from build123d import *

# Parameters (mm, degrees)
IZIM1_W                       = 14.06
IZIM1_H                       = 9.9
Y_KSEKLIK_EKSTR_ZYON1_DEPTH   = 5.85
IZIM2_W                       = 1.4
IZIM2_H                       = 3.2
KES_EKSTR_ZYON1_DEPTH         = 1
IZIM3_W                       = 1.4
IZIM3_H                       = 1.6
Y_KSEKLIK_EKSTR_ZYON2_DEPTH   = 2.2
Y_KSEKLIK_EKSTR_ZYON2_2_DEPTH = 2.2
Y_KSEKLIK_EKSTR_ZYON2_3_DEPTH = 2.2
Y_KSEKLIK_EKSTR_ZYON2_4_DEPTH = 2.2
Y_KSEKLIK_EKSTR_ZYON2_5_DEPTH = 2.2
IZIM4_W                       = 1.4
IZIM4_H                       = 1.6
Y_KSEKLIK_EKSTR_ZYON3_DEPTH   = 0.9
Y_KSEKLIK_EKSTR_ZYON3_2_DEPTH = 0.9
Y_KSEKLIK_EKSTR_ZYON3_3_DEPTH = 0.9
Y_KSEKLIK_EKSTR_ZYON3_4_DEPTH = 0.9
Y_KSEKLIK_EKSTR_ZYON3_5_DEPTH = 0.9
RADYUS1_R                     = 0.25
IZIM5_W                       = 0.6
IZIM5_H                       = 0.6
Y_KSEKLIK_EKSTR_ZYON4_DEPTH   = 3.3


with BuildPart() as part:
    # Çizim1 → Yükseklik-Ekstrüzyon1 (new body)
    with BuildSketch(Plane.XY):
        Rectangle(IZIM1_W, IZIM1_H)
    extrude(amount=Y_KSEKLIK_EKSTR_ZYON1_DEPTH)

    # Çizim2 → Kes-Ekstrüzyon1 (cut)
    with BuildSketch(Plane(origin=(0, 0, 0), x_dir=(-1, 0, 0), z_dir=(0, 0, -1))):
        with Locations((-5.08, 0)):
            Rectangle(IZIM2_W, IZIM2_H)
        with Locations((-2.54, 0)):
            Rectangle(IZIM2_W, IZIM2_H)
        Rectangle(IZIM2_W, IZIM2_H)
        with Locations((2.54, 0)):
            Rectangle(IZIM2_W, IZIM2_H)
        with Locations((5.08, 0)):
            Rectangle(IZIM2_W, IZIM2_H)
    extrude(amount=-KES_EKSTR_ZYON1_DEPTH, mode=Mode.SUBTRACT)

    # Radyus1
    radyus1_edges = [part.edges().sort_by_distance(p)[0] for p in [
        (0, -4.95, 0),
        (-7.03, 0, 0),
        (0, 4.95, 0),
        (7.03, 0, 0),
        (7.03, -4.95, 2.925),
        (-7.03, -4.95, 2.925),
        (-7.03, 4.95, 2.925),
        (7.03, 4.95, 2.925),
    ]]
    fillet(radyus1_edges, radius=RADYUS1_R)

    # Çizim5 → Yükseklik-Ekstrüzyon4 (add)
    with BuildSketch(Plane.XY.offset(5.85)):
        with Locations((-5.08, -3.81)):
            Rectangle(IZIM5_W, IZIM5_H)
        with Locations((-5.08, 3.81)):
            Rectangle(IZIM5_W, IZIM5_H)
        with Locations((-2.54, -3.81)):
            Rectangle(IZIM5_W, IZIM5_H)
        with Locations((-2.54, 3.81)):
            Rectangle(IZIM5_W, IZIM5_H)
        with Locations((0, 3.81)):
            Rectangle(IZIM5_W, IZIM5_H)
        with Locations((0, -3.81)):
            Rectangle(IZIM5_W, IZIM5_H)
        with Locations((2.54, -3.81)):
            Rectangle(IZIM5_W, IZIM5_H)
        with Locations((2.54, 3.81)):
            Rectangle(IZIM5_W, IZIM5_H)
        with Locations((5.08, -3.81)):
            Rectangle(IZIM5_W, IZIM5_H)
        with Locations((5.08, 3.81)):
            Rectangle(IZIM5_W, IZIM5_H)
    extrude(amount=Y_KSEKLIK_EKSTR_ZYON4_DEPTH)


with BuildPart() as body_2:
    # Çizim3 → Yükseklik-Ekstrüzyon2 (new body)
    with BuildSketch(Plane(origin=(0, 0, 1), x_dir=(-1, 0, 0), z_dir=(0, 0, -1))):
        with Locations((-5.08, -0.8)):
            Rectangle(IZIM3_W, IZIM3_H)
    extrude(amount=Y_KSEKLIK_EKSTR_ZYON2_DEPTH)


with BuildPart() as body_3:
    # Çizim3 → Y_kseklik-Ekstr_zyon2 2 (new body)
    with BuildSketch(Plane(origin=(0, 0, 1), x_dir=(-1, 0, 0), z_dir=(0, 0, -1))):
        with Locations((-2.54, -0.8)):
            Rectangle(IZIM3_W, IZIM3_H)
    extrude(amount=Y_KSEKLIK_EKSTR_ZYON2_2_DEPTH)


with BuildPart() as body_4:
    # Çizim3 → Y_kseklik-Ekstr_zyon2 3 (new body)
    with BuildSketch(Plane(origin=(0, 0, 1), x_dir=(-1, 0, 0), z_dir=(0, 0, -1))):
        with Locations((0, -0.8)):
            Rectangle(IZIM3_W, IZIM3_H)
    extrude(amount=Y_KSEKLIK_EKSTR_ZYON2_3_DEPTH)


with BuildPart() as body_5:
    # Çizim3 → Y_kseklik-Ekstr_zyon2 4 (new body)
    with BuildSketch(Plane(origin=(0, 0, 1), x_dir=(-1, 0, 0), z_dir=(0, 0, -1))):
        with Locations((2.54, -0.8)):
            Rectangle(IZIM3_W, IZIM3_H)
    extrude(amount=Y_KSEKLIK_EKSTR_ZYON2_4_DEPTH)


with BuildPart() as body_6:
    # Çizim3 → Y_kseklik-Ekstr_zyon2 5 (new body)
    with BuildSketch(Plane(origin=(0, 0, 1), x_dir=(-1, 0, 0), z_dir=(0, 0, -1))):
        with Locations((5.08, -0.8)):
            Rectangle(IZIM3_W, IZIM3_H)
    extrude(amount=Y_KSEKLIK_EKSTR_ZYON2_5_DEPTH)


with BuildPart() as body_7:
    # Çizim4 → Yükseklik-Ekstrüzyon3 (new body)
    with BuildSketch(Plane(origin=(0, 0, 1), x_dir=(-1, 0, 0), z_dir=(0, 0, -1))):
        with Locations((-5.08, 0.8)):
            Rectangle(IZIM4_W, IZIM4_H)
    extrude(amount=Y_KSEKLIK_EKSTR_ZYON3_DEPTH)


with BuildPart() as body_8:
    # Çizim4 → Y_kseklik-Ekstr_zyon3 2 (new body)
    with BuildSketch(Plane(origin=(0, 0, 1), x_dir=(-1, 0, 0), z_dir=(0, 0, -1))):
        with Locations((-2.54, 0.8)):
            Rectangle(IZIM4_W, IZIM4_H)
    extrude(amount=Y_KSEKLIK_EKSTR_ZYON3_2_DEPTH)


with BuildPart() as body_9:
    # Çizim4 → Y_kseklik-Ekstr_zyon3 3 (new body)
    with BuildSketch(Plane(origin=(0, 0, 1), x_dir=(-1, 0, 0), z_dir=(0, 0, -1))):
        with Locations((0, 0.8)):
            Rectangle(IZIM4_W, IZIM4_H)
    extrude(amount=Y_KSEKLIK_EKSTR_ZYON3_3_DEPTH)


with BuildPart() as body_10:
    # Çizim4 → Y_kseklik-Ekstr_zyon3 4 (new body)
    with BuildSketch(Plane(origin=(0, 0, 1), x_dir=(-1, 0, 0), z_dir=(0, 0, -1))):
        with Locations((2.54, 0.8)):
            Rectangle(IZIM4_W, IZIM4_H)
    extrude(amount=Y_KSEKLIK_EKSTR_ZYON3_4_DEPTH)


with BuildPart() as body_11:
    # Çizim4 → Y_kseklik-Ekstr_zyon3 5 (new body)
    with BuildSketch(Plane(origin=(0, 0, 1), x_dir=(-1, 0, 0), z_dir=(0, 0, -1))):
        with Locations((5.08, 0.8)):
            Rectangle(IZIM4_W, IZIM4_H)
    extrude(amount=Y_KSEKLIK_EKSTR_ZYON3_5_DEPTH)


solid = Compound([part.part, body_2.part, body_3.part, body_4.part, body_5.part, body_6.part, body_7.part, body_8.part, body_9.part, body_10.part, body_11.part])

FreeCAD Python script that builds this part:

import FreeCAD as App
import Part
import Sketcher
from FreeCAD import Vector


def edges_at(feature, points):
    """Names of the edges that pass closest to the given points."""
    edges = feature.Shape.Edges
    near = lambda p: min(range(len(edges)), key=lambda i: edges[i].distToShape(Part.Vertex(*p))[0])
    return sorted({f"Edge{near(p) + 1}" for p in points})


def add_polygon(sketch, points):
    """Adds a closed chain of lines whose ends are joined by coincident constraints."""
    first, n = sketch.GeometryCount, len(points)
    for a, b in zip(points, points[1:] + points[:1]):
        sketch.addGeometry(Part.LineSegment(App.Vector(*a, 0), App.Vector(*b, 0)), False)
    for i in range(n):
        sketch.addConstraint(Sketcher.Constraint("Coincident", first + i, 2, first + (i + 1) % n, 1))

doc = App.newDocument("Part")
body = doc.addObject("PartDesign::Body", "Body")

# Sketch on XY plane
sketch1 = body.newObject("Sketcher::SketchObject", "Sketch")
sketch1.AttachmentSupport = (doc.getObject("XY_Plane"), [""])
sketch1.MapMode = "FlatFace"
add_polygon(sketch1, [(-7, 5), (-7, -5), (7, -5), (7, 5)])  # lines 0-3
sketch1.addConstraint(Sketcher.Constraint("Vertical", 0))
sketch1.addConstraint(Sketcher.Constraint("Horizontal", 1))
sketch1.addConstraint(Sketcher.Constraint("Vertical", 2))
sketch1.addConstraint(Sketcher.Constraint("Horizontal", 3))
sketch1.addConstraint(Sketcher.Constraint("Symmetric", 0, 2, 2, 2, -1, 1))
sketch1.addConstraint(Sketcher.Constraint("DistanceY", 0, 2, 0, 1, 9.9))
sketch1.addConstraint(Sketcher.Constraint("DistanceX", 1, 1, 1, 2, 14.06))
pad1 = body.newObject("PartDesign::Pad", "Pad")
pad1.Profile = sketch1
pad1.Length = 5.85

# Sketch on XY plane
sketch2 = body.newObject("Sketcher::SketchObject", "Sketch001")
sketch2.AttachmentSupport = (doc.getObject("XY_Plane"), [""])
sketch2.MapMode = "FlatFace"
add_polygon(sketch2, [(5.8, 1.6), (5.8, -1.6), (4.4, -1.6), (4.4, 1.6)])  # lines 0-3
add_polygon(sketch2, [(3.2, 1.6), (3.2, -1.6), (1.8, -1.6), (1.8, 1.6)])  # lines 4-7
add_polygon(sketch2, [(0.7, 1.6), (0.7, -1.6), (-0.7, -1.6), (-0.7, 1.6)])  # lines 8-11
add_polygon(sketch2, [(-1.8, 1.6), (-1.8, -1.6), (-3.2, -1.6), (-3.2, 1.6)])  # lines 12-15
add_polygon(sketch2, [(-4.4, 1.6), (-4.4, -1.6), (-5.8, -1.6), (-5.8, 1.6)])  # lines 16-19
sketch2.addConstraint(Sketcher.Constraint("Vertical", 0))
sketch2.addConstraint(Sketcher.Constraint("Horizontal", 1))
sketch2.addConstraint(Sketcher.Constraint("Vertical", 2))
sketch2.addConstraint(Sketcher.Constraint("Horizontal", 3))
sketch2.addConstraint(Sketcher.Constraint("Vertical", 4))
sketch2.addConstraint(Sketcher.Constraint("Horizontal", 5))
sketch2.addConstraint(Sketcher.Constraint("Vertical", 6))
sketch2.addConstraint(Sketcher.Constraint("Horizontal", 7))
sketch2.addConstraint(Sketcher.Constraint("Vertical", 8))
sketch2.addConstraint(Sketcher.Constraint("Horizontal", 9))
sketch2.addConstraint(Sketcher.Constraint("Vertical", 10))
sketch2.addConstraint(Sketcher.Constraint("Horizontal", 11))
sketch2.addConstraint(Sketcher.Constraint("Vertical", 12))
sketch2.addConstraint(Sketcher.Constraint("Horizontal", 13))
sketch2.addConstraint(Sketcher.Constraint("Vertical", 14))
sketch2.addConstraint(Sketcher.Constraint("Horizontal", 15))
sketch2.addConstraint(Sketcher.Constraint("Vertical", 16))
sketch2.addConstraint(Sketcher.Constraint("Horizontal", 17))
sketch2.addConstraint(Sketcher.Constraint("Vertical", 18))
sketch2.addConstraint(Sketcher.Constraint("Horizontal", 19))
sketch2.addConstraint(Sketcher.Constraint("Symmetric", 8, 2, 10, 2, -1, 1))
sketch2.addConstraint(Sketcher.Constraint("Symmetric", 6, 2, 12, 2, -1, 1))
sketch2.addConstraint(Sketcher.Constraint("Symmetric", 4, 2, 14, 2, -1, 1))
sketch2.addConstraint(Sketcher.Constraint("Symmetric", 2, 2, 16, 2, -1, 1))
sketch2.addConstraint(Sketcher.Constraint("Symmetric", 0, 2, 18, 2, -1, 1))
sketch2.addConstraint(Sketcher.Constraint("Horizontal", 1, 2, 4, 2))
sketch2.addConstraint(Sketcher.Constraint("Horizontal", 3, 2, 6, 2))
sketch2.addConstraint(Sketcher.Constraint("Horizontal", 5, 2, 8, 2))
sketch2.addConstraint(Sketcher.Constraint("Horizontal", 7, 2, 10, 2))
sketch2.addConstraint(Sketcher.Constraint("Equal", 3, 5))
sketch2.addConstraint(Sketcher.Constraint("Equal", 7, 9))
sketch2.addConstraint(Sketcher.Constraint("DistanceX", 1, 2, 1, 1, 1.4))
sketch2.addConstraint(Sketcher.Constraint("DistanceY", 0, 2, 0, 1, 3.2))
sketch2.addConstraint(Sketcher.Constraint("DistanceX", -1, 1, 0, 2, 5.78))
sketch2.addConstraint(Sketcher.Constraint("DistanceX", -1, 1, 4, 2, 3.24))
pocket1 = body.newObject("PartDesign::Pocket", "Pocket")
pocket1.Profile = sketch2
pocket1.Length = 1
pocket1.Reversed = True
doc.recompute()

fillet = body.newObject("PartDesign::Fillet", "Fillet")
fillet.Base = (pocket1, edges_at(pocket1, [
    (0, -4.95, 0),
    (-7.03, 0, 0),
    (0, 4.95, 0),
    (7.03, 0, 0),
    (7.03, -4.95, 2.925),
    (-7.03, -4.95, 2.925),
    (-7.03, 4.95, 2.925),
    (7.03, 4.95, 2.925),
]))
fillet.Radius = 0.25

# Sketch on XY plane
sketch3 = body.newObject("Sketcher::SketchObject", "Sketch002")
sketch3.AttachmentSupport = (doc.getObject("XY_Plane"), [""])
sketch3.MapMode = "FlatFace"
sketch3.AttachmentOffset = App.Placement(Vector(0, 0, 5.85), App.Rotation())
add_polygon(sketch3, [(-5.4, -3.5), (-5.4, -4.1), (-4.8, -4.1), (-4.8, -3.5)])  # lines 0-3
add_polygon(sketch3, [(-5.4, 4.1), (-5.4, 3.5), (-4.8, 3.5), (-4.8, 4.1)])  # lines 4-7
add_polygon(sketch3, [(-2.8, -3.5), (-2.8, -4.1), (-2.2, -4.1), (-2.2, -3.5)])  # lines 8-11
add_polygon(sketch3, [(-2.8, 4.1), (-2.8, 3.5), (-2.2, 3.5), (-2.2, 4.1)])  # lines 12-15
add_polygon(sketch3, [(-0.3, 4.1), (-0.3, 3.5), (0.3, 3.5), (0.3, 4.1)])  # lines 16-19
add_polygon(sketch3, [(-0.3, -3.5), (-0.3, -4.1), (0.3, -4.1), (0.3, -3.5)])  # lines 20-23
add_polygon(sketch3, [(2.2, -3.5), (2.2, -4.1), (2.8, -4.1), (2.8, -3.5)])  # lines 24-27
add_polygon(sketch3, [(2.2, 4.1), (2.2, 3.5), (2.8, 3.5), (2.8, 4.1)])  # lines 28-31
add_polygon(sketch3, [(4.8, -3.5), (4.8, -4.1), (5.4, -4.1), (5.4, -3.5)])  # lines 32-35
add_polygon(sketch3, [(4.8, 4.1), (4.8, 3.5), (5.4, 3.5), (5.4, 4.1)])  # lines 36-39
sketch3.addConstraint(Sketcher.Constraint("Vertical", 0))
sketch3.addConstraint(Sketcher.Constraint("Horizontal", 1))
sketch3.addConstraint(Sketcher.Constraint("Vertical", 2))
sketch3.addConstraint(Sketcher.Constraint("Horizontal", 3))
sketch3.addConstraint(Sketcher.Constraint("Vertical", 4))
sketch3.addConstraint(Sketcher.Constraint("Horizontal", 5))
sketch3.addConstraint(Sketcher.Constraint("Vertical", 6))
sketch3.addConstraint(Sketcher.Constraint("Horizontal", 7))
sketch3.addConstraint(Sketcher.Constraint("Vertical", 8))
sketch3.addConstraint(Sketcher.Constraint("Horizontal", 9))
sketch3.addConstraint(Sketcher.Constraint("Vertical", 10))
sketch3.addConstraint(Sketcher.Constraint("Horizontal", 11))
sketch3.addConstraint(Sketcher.Constraint("Vertical", 12))
sketch3.addConstraint(Sketcher.Constraint("Horizontal", 13))
sketch3.addConstraint(Sketcher.Constraint("Vertical", 14))
sketch3.addConstraint(Sketcher.Constraint("Horizontal", 15))
sketch3.addConstraint(Sketcher.Constraint("Vertical", 16))
sketch3.addConstraint(Sketcher.Constraint("Horizontal", 17))
sketch3.addConstraint(Sketcher.Constraint("Vertical", 18))
sketch3.addConstraint(Sketcher.Constraint("Horizontal", 19))
sketch3.addConstraint(Sketcher.Constraint("Vertical", 20))
sketch3.addConstraint(Sketcher.Constraint("Horizontal", 21))
sketch3.addConstraint(Sketcher.Constraint("Vertical", 22))
sketch3.addConstraint(Sketcher.Constraint("Horizontal", 23))
sketch3.addConstraint(Sketcher.Constraint("Vertical", 24))
sketch3.addConstraint(Sketcher.Constraint("Horizontal", 25))
sketch3.addConstraint(Sketcher.Constraint("Vertical", 26))
sketch3.addConstraint(Sketcher.Constraint("Horizontal", 27))
sketch3.addConstraint(Sketcher.Constraint("Vertical", 28))
sketch3.addConstraint(Sketcher.Constraint("Horizontal", 29))
sketch3.addConstraint(Sketcher.Constraint("Vertical", 30))
sketch3.addConstraint(Sketcher.Constraint("Horizontal", 31))
sketch3.addConstraint(Sketcher.Constraint("Vertical", 32))
sketch3.addConstraint(Sketcher.Constraint("Horizontal", 33))
sketch3.addConstraint(Sketcher.Constraint("Vertical", 34))
sketch3.addConstraint(Sketcher.Constraint("Horizontal", 35))
sketch3.addConstraint(Sketcher.Constraint("Vertical", 36))
sketch3.addConstraint(Sketcher.Constraint("Horizontal", 37))
sketch3.addConstraint(Sketcher.Constraint("Vertical", 38))
sketch3.addConstraint(Sketcher.Constraint("Horizontal", 39))
sketch3.addConstraint(Sketcher.Constraint("Symmetric", 18, 2, 20, 2, -1, 1))
sketch3.addConstraint(Sketcher.Constraint("Symmetric", 16, 2, 22, 2, -1, 1))
sketch3.addConstraint(Sketcher.Constraint("Symmetric", 14, 2, 24, 2, -1, 1))
sketch3.addConstraint(Sketcher.Constraint("Symmetric", 12, 2, 26, 2, -1, 1))
sketch3.addConstraint(Sketcher.Constraint("Symmetric", 10, 2, 28, 2, -1, 1))
sketch3.addConstraint(Sketcher.Constraint("Symmetric", 8, 2, 30, 2, -1, 1))
sketch3.addConstraint(Sketcher.Constraint("Symmetric", 6, 2, 32, 2, -1, 1))
sketch3.addConstraint(Sketcher.Constraint("Symmetric", 4, 2, 34, 2, -1, 1))
sketch3.addConstraint(Sketcher.Constraint("Symmetric", 2, 2, 36, 2, -1, 1))
sketch3.addConstraint(Sketcher.Constraint("Symmetric", 0, 2, 38, 2, -1, 1))
sketch3.addConstraint(Sketcher.Constraint("Symmetric", 9, 2, 24, 2, -2))
sketch3.addConstraint(Sketcher.Constraint("Symmetric", 11, 2, 26, 2, -2))
sketch3.addConstraint(Sketcher.Constraint("Symmetric", 1, 2, 32, 2, -2))
sketch3.addConstraint(Sketcher.Constraint("Symmetric", 3, 2, 34, 2, -2))
sketch3.addConstraint(Sketcher.Constraint("Horizontal", 1, 2, 8, 2))
sketch3.addConstraint(Sketcher.Constraint("Horizontal", 3, 2, 10, 2))
sketch3.addConstraint(Sketcher.Constraint("Horizontal", 13, 2, 16, 2))
sketch3.addConstraint(Sketcher.Constraint("Horizontal", 15, 2, 18, 2))
sketch3.addConstraint(Sketcher.Constraint("Vertical", 19, 2, 20, 2))
sketch3.addConstraint(Sketcher.Constraint("Equal", 7, 9))
sketch3.addConstraint(Sketcher.Constraint("Equal", 15, 17))
sketch3.addConstraint(Sketcher.Constraint("Equal", 39, 0))
sketch3.addConstraint(Sketcher.Constraint("DistanceX", 1, 1, 1, 2, 0.6))
sketch3.addConstraint(Sketcher.Constraint("DistanceX", 0, 2, -1, 1, 5.38))
sketch3.addConstraint(Sketcher.Constraint("DistanceY", 0, 2, -1, 1, 4.11))
sketch3.addConstraint(Sketcher.Constraint("DistanceX", 8, 2, -1, 1, 2.84))
pad2 = body.newObject("PartDesign::Pad", "Pad001")
pad2.Profile = sketch3
pad2.Length = 3.3
body2 = doc.addObject("PartDesign::Body", "Body001")

# Sketch on XY plane
sketch4 = body2.newObject("Sketcher::SketchObject", "Sketch003")
sketch4.AttachmentSupport = (doc.getObject("XY_Plane001"), [""])
sketch4.MapMode = "FlatFace"
sketch4.AttachmentOffset = App.Placement(Vector(0, 0, 1), App.Rotation())
add_polygon(sketch4, [(5.8, 0), (5.8, -1.6), (4.4, -1.6), (4.4, 0)])  # lines 0-3
sketch4.addConstraint(Sketcher.Constraint("Vertical", 0))
sketch4.addConstraint(Sketcher.Constraint("Horizontal", 1))
sketch4.addConstraint(Sketcher.Constraint("Vertical", 2))
sketch4.addConstraint(Sketcher.Constraint("Horizontal", 3))
sketch4.addConstraint(Sketcher.Constraint("PointOnObject", 2, 2, -1))
sketch4.addConstraint(Sketcher.Constraint("DistanceX", 1, 2, 1, 1, 1.4))
sketch4.addConstraint(Sketcher.Constraint("DistanceY", 0, 2, 0, 1, 1.6))
sketch4.addConstraint(Sketcher.Constraint("DistanceX", -1, 1, 0, 2, 5.78))
pad3 = body2.newObject("PartDesign::Pad", "Pad002")
pad3.Profile = sketch4
pad3.Length = 2.2
pad3.Reversed = True
body3 = doc.addObject("PartDesign::Body", "Body002")

# Sketch on XY plane
sketch5 = body3.newObject("Sketcher::SketchObject", "Sketch004")
sketch5.AttachmentSupport = (doc.getObject("XY_Plane002"), [""])
sketch5.MapMode = "FlatFace"
sketch5.AttachmentOffset = App.Placement(Vector(0, 0, 1), App.Rotation())
add_polygon(sketch5, [(3.2, 0), (3.2, -1.6), (1.8, -1.6), (1.8, 0)])  # lines 0-3
sketch5.addConstraint(Sketcher.Constraint("Vertical", 0))
sketch5.addConstraint(Sketcher.Constraint("Horizontal", 1))
sketch5.addConstraint(Sketcher.Constraint("Vertical", 2))
sketch5.addConstraint(Sketcher.Constraint("Horizontal", 3))
sketch5.addConstraint(Sketcher.Constraint("PointOnObject", 2, 2, -1))
sketch5.addConstraint(Sketcher.Constraint("DistanceX", 1, 2, 1, 1, 1.4))
sketch5.addConstraint(Sketcher.Constraint("DistanceY", 0, 2, 0, 1, 1.6))
sketch5.addConstraint(Sketcher.Constraint("DistanceX", -1, 1, 0, 2, 3.24))
pad4 = body3.newObject("PartDesign::Pad", "Pad003")
pad4.Profile = sketch5
pad4.Length = 2.2
pad4.Reversed = True
body4 = doc.addObject("PartDesign::Body", "Body003")

# Sketch on XY plane
sketch6 = body4.newObject("Sketcher::SketchObject", "Sketch005")
sketch6.AttachmentSupport = (doc.getObject("XY_Plane003"), [""])
sketch6.MapMode = "FlatFace"
sketch6.AttachmentOffset = App.Placement(Vector(0, 0, 1), App.Rotation())
add_polygon(sketch6, [(0.7, 0), (0.7, -1.6), (-0.7, -1.6), (-0.7, 0)])  # lines 0-3
sketch6.addConstraint(Sketcher.Constraint("Vertical", 0))
sketch6.addConstraint(Sketcher.Constraint("Horizontal", 1))
sketch6.addConstraint(Sketcher.Constraint("Vertical", 2))
sketch6.addConstraint(Sketcher.Constraint("Horizontal", 3))
sketch6.addConstraint(Sketcher.Constraint("Symmetric", 2, 2, 3, 2, -1, 1))
sketch6.addConstraint(Sketcher.Constraint("DistanceX", 1, 2, 1, 1, 1.4))
sketch6.addConstraint(Sketcher.Constraint("DistanceY", 0, 2, 0, 1, 1.6))
pad5 = body4.newObject("PartDesign::Pad", "Pad004")
pad5.Profile = sketch6
pad5.Length = 2.2
pad5.Reversed = True
body5 = doc.addObject("PartDesign::Body", "Body004")

# Sketch on XY plane
sketch7 = body5.newObject("Sketcher::SketchObject", "Sketch006")
sketch7.AttachmentSupport = (doc.getObject("XY_Plane004"), [""])
sketch7.MapMode = "FlatFace"
sketch7.AttachmentOffset = App.Placement(Vector(0, 0, 1), App.Rotation())
add_polygon(sketch7, [(-1.8, 0), (-1.8, -1.6), (-3.2, -1.6), (-3.2, 0)])  # lines 0-3
sketch7.addConstraint(Sketcher.Constraint("Vertical", 0))
sketch7.addConstraint(Sketcher.Constraint("Horizontal", 1))
sketch7.addConstraint(Sketcher.Constraint("Vertical", 2))
sketch7.addConstraint(Sketcher.Constraint("Horizontal", 3))
sketch7.addConstraint(Sketcher.Constraint("PointOnObject", 2, 2, -1))
sketch7.addConstraint(Sketcher.Constraint("DistanceX", 1, 2, 1, 1, 1.4))
sketch7.addConstraint(Sketcher.Constraint("DistanceY", 0, 2, 0, 1, 1.6))
sketch7.addConstraint(Sketcher.Constraint("DistanceX", 0, 2, -1, 1, 1.84))
pad6 = body5.newObject("PartDesign::Pad", "Pad005")
pad6.Profile = sketch7
pad6.Length = 2.2
pad6.Reversed = True
body6 = doc.addObject("PartDesign::Body", "Body005")

# Sketch on XY plane
sketch8 = body6.newObject("Sketcher::SketchObject", "Sketch007")
sketch8.AttachmentSupport = (doc.getObject("XY_Plane005"), [""])
sketch8.MapMode = "FlatFace"
sketch8.AttachmentOffset = App.Placement(Vector(0, 0, 1), App.Rotation())
add_polygon(sketch8, [(-4.4, 0), (-4.4, -1.6), (-5.8, -1.6), (-5.8, 0)])  # lines 0-3
sketch8.addConstraint(Sketcher.Constraint("Vertical", 0))
sketch8.addConstraint(Sketcher.Constraint("Horizontal", 1))
sketch8.addConstraint(Sketcher.Constraint("Vertical", 2))
sketch8.addConstraint(Sketcher.Constraint("Horizontal", 3))
sketch8.addConstraint(Sketcher.Constraint("PointOnObject", 2, 2, -1))
sketch8.addConstraint(Sketcher.Constraint("DistanceX", 1, 2, 1, 1, 1.4))
sketch8.addConstraint(Sketcher.Constraint("DistanceY", 0, 2, 0, 1, 1.6))
sketch8.addConstraint(Sketcher.Constraint("DistanceX", 0, 2, -1, 1, 4.38))
pad7 = body6.newObject("PartDesign::Pad", "Pad006")
pad7.Profile = sketch8
pad7.Length = 2.2
pad7.Reversed = True
body7 = doc.addObject("PartDesign::Body", "Body006")

# Sketch on XY plane
sketch9 = body7.newObject("Sketcher::SketchObject", "Sketch008")
sketch9.AttachmentSupport = (doc.getObject("XY_Plane006"), [""])
sketch9.MapMode = "FlatFace"
sketch9.AttachmentOffset = App.Placement(Vector(0, 0, 1), App.Rotation())
add_polygon(sketch9, [(5.8, 1.6), (5.8, 0), (4.4, 0), (4.4, 1.6)])  # lines 0-3
sketch9.addConstraint(Sketcher.Constraint("Vertical", 0))
sketch9.addConstraint(Sketcher.Constraint("Horizontal", 1))
sketch9.addConstraint(Sketcher.Constraint("Vertical", 2))
sketch9.addConstraint(Sketcher.Constraint("Horizontal", 3))
sketch9.addConstraint(Sketcher.Constraint("PointOnObject", 0, 2, -1))
sketch9.addConstraint(Sketcher.Constraint("DistanceX", 1, 2, 1, 1, 1.4))
sketch9.addConstraint(Sketcher.Constraint("DistanceY", 0, 2, 0, 1, 1.6))
sketch9.addConstraint(Sketcher.Constraint("DistanceX", -1, 1, 0, 2, 5.78))
pad8 = body7.newObject("PartDesign::Pad", "Pad007")
pad8.Profile = sketch9
pad8.Length = 0.9
pad8.Reversed = True
body8 = doc.addObject("PartDesign::Body", "Body007")

# Sketch on XY plane
sketch10 = body8.newObject("Sketcher::SketchObject", "Sketch009")
sketch10.AttachmentSupport = (doc.getObject("XY_Plane007"), [""])
sketch10.MapMode = "FlatFace"
sketch10.AttachmentOffset = App.Placement(Vector(0, 0, 1), App.Rotation())
add_polygon(sketch10, [(3.2, 1.6), (3.2, 0), (1.8, 0), (1.8, 1.6)])  # lines 0-3
sketch10.addConstraint(Sketcher.Constraint("Vertical", 0))
sketch10.addConstraint(Sketcher.Constraint("Horizontal", 1))
sketch10.addConstraint(Sketcher.Constraint("Vertical", 2))
sketch10.addConstraint(Sketcher.Constraint("Horizontal", 3))
sketch10.addConstraint(Sketcher.Constraint("PointOnObject", 0, 2, -1))
sketch10.addConstraint(Sketcher.Constraint("DistanceX", 1, 2, 1, 1, 1.4))
sketch10.addConstraint(Sketcher.Constraint("DistanceY", 0, 2, 0, 1, 1.6))
sketch10.addConstraint(Sketcher.Constraint("DistanceX", -1, 1, 0, 2, 3.24))
pad9 = body8.newObject("PartDesign::Pad", "Pad008")
pad9.Profile = sketch10
pad9.Length = 0.9
pad9.Reversed = True
body9 = doc.addObject("PartDesign::Body", "Body008")

# Sketch on XY plane
sketch11 = body9.newObject("Sketcher::SketchObject", "Sketch010")
sketch11.AttachmentSupport = (doc.getObject("XY_Plane008"), [""])
sketch11.MapMode = "FlatFace"
sketch11.AttachmentOffset = App.Placement(Vector(0, 0, 1), App.Rotation())
add_polygon(sketch11, [(0.7, 1.6), (0.7, 0), (-0.7, 0), (-0.7, 1.6)])  # lines 0-3
sketch11.addConstraint(Sketcher.Constraint("Vertical", 0))
sketch11.addConstraint(Sketcher.Constraint("Horizontal", 1))
sketch11.addConstraint(Sketcher.Constraint("Vertical", 2))
sketch11.addConstraint(Sketcher.Constraint("Horizontal", 3))
sketch11.addConstraint(Sketcher.Constraint("Symmetric", 0, 2, 1, 2, -1, 1))
sketch11.addConstraint(Sketcher.Constraint("DistanceX", 1, 2, 1, 1, 1.4))
sketch11.addConstraint(Sketcher.Constraint("DistanceY", 0, 2, 0, 1, 1.6))
pad10 = body9.newObject("PartDesign::Pad", "Pad009")
pad10.Profile = sketch11
pad10.Length = 0.9
pad10.Reversed = True
body10 = doc.addObject("PartDesign::Body", "Body009")

# Sketch on XY plane
sketch12 = body10.newObject("Sketcher::SketchObject", "Sketch011")
sketch12.AttachmentSupport = (doc.getObject("XY_Plane009"), [""])
sketch12.MapMode = "FlatFace"
sketch12.AttachmentOffset = App.Placement(Vector(0, 0, 1), App.Rotation())
add_polygon(sketch12, [(-1.8, 1.6), (-1.8, 0), (-3.2, 0), (-3.2, 1.6)])  # lines 0-3
sketch12.addConstraint(Sketcher.Constraint("Vertical", 0))
sketch12.addConstraint(Sketcher.Constraint("Horizontal", 1))
sketch12.addConstraint(Sketcher.Constraint("Vertical", 2))
sketch12.addConstraint(Sketcher.Constraint("Horizontal", 3))
sketch12.addConstraint(Sketcher.Constraint("PointOnObject", 0, 2, -1))
sketch12.addConstraint(Sketcher.Constraint("DistanceX", 1, 2, 1, 1, 1.4))
sketch12.addConstraint(Sketcher.Constraint("DistanceY", 0, 2, 0, 1, 1.6))
sketch12.addConstraint(Sketcher.Constraint("DistanceX", 0, 2, -1, 1, 1.84))
pad11 = body10.newObject("PartDesign::Pad", "Pad010")
pad11.Profile = sketch12
pad11.Length = 0.9
pad11.Reversed = True
body11 = doc.addObject("PartDesign::Body", "Body010")

# Sketch on XY plane
sketch13 = body11.newObject("Sketcher::SketchObject", "Sketch012")
sketch13.AttachmentSupport = (doc.getObject("XY_Plane010"), [""])
sketch13.MapMode = "FlatFace"
sketch13.AttachmentOffset = App.Placement(Vector(0, 0, 1), App.Rotation())
add_polygon(sketch13, [(-4.4, 1.6), (-4.4, 0), (-5.8, 0), (-5.8, 1.6)])  # lines 0-3
sketch13.addConstraint(Sketcher.Constraint("Vertical", 0))
sketch13.addConstraint(Sketcher.Constraint("Horizontal", 1))
sketch13.addConstraint(Sketcher.Constraint("Vertical", 2))
sketch13.addConstraint(Sketcher.Constraint("Horizontal", 3))
sketch13.addConstraint(Sketcher.Constraint("PointOnObject", 0, 2, -1))
sketch13.addConstraint(Sketcher.Constraint("DistanceX", 1, 2, 1, 1, 1.4))
sketch13.addConstraint(Sketcher.Constraint("DistanceY", 0, 2, 0, 1, 1.6))
sketch13.addConstraint(Sketcher.Constraint("DistanceX", 0, 2, -1, 1, 4.38))
pad12 = body11.newObject("PartDesign::Pad", "Pad011")
pad12.Profile = sketch13
pad12.Length = 0.9
pad12.Reversed = True

doc.recompute()
